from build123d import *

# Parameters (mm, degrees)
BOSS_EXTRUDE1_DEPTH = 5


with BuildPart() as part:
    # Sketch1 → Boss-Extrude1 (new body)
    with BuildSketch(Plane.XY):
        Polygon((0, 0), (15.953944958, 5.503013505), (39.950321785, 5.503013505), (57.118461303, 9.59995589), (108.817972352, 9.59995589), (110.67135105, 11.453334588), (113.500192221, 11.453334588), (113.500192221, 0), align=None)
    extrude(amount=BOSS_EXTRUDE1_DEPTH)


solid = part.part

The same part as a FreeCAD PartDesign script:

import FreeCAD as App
import Part
import Sketcher
from FreeCAD import Vector
Q = App.Units.Quantity

doc = App.newDocument("Part")
body = doc.addObject("PartDesign::Body", "Body")

# Sketch on XY plane
sketch1 = body.newObject("Sketcher::SketchObject", "Sketch")
sketch1.AttachmentSupport = (doc.getObject("XY_Plane"), [""])
sketch1.MapMode = "FlatFace"
sketch1.addGeometry([
    Part.LineSegment(Vector(15.953945, 5.503014, 0), Vector(0, 0, 0)),  # 0
    Part.LineSegment(Vector(0, 0, 0), Vector(113.500192, 0, 0)),  # 1
    Part.LineSegment(Vector(113.500192, 0, 0), Vector(113.500192, 11.453335, 0)),  # 2
    Part.LineSegment(Vector(113.500192, 11.453335, 0), Vector(110.671351, 11.453335, 0)),  # 3
    Part.LineSegment(Vector(110.671351, 11.453335, 0), Vector(108.817972, 9.599956, 0)),  # 4
    Part.LineSegment(Vector(108.817972, 9.599956, 0), Vector(57.118461, 9.599956, 0)),  # 5
    Part.LineSegment(Vector(57.118461, 9.599956, 0), Vector(39.950322, 5.503014, 0)),  # 6
    Part.LineSegment(Vector(39.950322, 5.503014, 0), Vector(15.953945, 5.503014, 0)),  # 7
], False)
sketch1.addConstraint([
    Sketcher.Constraint("Coincident", 0, 2, 1, 1),
    Sketcher.Constraint("Coincident", 1, 2, 2, 1),
    Sketcher.Constraint("Coincident", 2, 2, 3, 1),
    Sketcher.Constraint("Coincident", 3, 2, 4, 1),
    Sketcher.Constraint("Coincident", 4, 2, 5, 1),
    Sketcher.Constraint("Coincident", 5, 2, 6, 1),
    Sketcher.Constraint("Coincident", 6, 2, 7, 1),
    Sketcher.Constraint("Coincident", 7, 2, 0, 1),
    Sketcher.Constraint("Horizontal", 1),
    Sketcher.Constraint("Vertical", 2),
    Sketcher.Constraint("Horizontal", 3),
    Sketcher.Constraint("Horizontal", 5),
    Sketcher.Constraint("Horizontal", 7),
    Sketcher.Constraint("Coincident", 0, 2, -1, 1),
    Sketcher.Constraint("Angle", 4, Q("-135 deg")),
    Sketcher.Constraint("DistanceX", 3, 2, 3, 1, 2.828841),
    Sketcher.Constraint("DistanceX", 5, 2, 5, 1, 51.699511),
    Sketcher.Constraint("Distance", 0, 16.87636),
    Sketcher.Constraint("Distance", 6, 17.650211),
    Sketcher.Constraint("DistanceX", 1, 1, 1, 2, 113.500192),
    Sketcher.Constraint("DistanceX", 7, 2, 7, 1, 23.996377),
    Sketcher.Constraint("DistanceY", 2, 1, 2, 2, 11.453335),
    Sketcher.Constraint("DistanceX", -1, 1, 5, 2, 57.118461),
])
pad1 = body.newObject("PartDesign::Pad", "Pad")
pad1.Profile = sketch1
pad1.Length = 5

doc.recompute()
